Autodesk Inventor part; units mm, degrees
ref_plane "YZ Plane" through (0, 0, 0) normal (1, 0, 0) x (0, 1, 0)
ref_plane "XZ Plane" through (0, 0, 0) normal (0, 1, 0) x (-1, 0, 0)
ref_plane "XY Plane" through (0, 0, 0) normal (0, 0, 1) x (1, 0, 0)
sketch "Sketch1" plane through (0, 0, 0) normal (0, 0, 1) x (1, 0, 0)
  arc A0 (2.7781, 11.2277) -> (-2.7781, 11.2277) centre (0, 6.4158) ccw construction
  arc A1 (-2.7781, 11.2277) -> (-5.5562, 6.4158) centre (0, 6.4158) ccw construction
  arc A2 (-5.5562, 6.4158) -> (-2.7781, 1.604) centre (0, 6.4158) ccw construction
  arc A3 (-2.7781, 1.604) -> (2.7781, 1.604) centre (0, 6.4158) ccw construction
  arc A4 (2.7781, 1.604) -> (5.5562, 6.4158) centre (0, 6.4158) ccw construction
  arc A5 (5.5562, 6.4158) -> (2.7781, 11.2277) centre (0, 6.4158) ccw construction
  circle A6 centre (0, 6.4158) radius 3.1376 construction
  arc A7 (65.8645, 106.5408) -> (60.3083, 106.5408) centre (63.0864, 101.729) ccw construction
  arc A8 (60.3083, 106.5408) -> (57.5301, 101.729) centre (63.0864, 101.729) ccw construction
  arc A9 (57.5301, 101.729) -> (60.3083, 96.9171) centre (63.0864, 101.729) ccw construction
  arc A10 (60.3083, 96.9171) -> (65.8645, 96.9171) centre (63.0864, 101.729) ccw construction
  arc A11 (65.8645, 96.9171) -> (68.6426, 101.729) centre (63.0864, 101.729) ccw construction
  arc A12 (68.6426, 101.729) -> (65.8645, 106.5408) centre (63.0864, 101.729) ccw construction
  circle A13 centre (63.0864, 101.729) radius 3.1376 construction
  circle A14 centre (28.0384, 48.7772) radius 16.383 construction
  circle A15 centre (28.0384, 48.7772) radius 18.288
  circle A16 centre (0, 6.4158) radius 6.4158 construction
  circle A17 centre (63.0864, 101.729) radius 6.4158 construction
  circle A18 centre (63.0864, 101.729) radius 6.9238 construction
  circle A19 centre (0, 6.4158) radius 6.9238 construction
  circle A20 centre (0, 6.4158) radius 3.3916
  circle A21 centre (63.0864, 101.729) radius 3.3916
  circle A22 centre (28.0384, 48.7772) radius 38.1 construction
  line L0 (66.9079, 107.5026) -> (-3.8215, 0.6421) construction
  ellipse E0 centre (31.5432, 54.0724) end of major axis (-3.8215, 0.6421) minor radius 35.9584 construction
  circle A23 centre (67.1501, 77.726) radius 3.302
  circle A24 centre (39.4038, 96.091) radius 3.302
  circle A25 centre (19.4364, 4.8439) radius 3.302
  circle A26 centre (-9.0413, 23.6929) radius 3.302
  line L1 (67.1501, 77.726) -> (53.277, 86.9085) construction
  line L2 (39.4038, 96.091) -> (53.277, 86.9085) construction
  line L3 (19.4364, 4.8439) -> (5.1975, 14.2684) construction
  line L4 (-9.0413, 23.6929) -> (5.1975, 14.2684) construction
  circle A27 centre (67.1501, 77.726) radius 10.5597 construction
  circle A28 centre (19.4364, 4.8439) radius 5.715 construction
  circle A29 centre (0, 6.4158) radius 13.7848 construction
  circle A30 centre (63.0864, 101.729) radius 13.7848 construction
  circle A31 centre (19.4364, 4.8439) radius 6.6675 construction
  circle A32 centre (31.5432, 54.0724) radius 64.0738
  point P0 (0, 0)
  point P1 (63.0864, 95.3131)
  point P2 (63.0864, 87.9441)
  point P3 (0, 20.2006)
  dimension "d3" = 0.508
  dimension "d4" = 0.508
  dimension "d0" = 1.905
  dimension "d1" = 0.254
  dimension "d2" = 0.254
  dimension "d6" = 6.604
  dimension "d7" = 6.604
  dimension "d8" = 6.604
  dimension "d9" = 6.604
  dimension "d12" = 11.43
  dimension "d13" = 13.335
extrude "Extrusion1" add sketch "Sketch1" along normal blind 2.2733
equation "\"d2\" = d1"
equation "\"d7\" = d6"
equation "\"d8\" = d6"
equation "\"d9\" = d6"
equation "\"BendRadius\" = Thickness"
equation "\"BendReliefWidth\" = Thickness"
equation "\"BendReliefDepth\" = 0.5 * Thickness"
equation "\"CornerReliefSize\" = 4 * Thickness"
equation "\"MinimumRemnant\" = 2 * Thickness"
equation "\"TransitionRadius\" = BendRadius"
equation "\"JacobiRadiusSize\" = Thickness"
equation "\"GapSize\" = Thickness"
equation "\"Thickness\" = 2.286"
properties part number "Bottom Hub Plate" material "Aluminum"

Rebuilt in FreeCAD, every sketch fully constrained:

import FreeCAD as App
import Part
import Sketcher

V = App.Vector
Q = App.Units.Quantity

doc = App.newDocument("Part")
params = doc.addObject("Spreadsheet::Sheet", "Params")
for row, (alias, value) in enumerate([
    ("sketch1_diameter", "0.26 in"),
    ("sketch1_diameter2", "1.44 in"),
    ("pad1_length", "0.0895 in"),
], start=1):
    params.set(f"A{row}", alias)
    params.set(f"B{row}", "=" + value)
    params.setAlias(f"B{row}", alias)

body = doc.addObject("PartDesign::Body", "Body")

sketch1 = body.newObject("Sketcher::SketchObject", "Sketch")
sketch1.AttachmentSupport = (doc.getObject("XY_Plane"), [""])
sketch1.MapMode = "FlatFace"
sketch1.addGeometry([
    Part.Circle(V(31.5432, 54.0724, 0), V(0, 0, 1), 64.0738),
    Part.Circle(V(19.4364, 4.8439, 0), V(0, 0, 1), 3.302),
    Part.Circle(V(0, 6.4158, 0), V(0, 0, 1), 3.3916),
    Part.Circle(V(-9.0413, 23.6929, 0), V(0, 0, 1), 3.302),
    Part.Circle(V(28.0384, 48.7772, 0), V(0, 0, 1), 18.288),
    Part.Circle(V(67.1501, 77.726, 0), V(0, 0, 1), 3.302),
    Part.Circle(V(39.4038, 96.091, 0), V(0, 0, 1), 3.302),
    Part.Circle(V(63.0864, 101.729, 0), V(0, 0, 1), 3.3916),
], False)
sketch1.addConstraint([
    Sketcher.Constraint("Equal", 1, 3),
    Sketcher.Constraint("Equal", 3, 5),
    Sketcher.Constraint("Equal", 5, 6),
    Sketcher.Constraint("Equal", 2, 7),
    Sketcher.Constraint("PointOnObject", 2, 3, -2),
    Sketcher.Constraint("Diameter", 1, Q("0.26 in")),
    Sketcher.Constraint("Diameter", 4, Q("1.44 in")),
    Sketcher.Constraint("Diameter", 0, 128.1476),
    Sketcher.Constraint("Diameter", 2, 6.7832),
    Sketcher.Constraint("DistanceX", 7, 3, 5, 3, Q("0.16 in")),
    Sketcher.Constraint("DistanceY", 5, 3, 7, 3, Q("0.945 in")),
    Sketcher.Constraint("DistanceY", -1, 1, 1, 3, Q("0.1907 in")),
    Sketcher.Constraint("DistanceY", -1, 1, 2, 3, Q("0.2526 in")),
    Sketcher.Constraint("DistanceY", -1, 1, 3, 3, Q("0.9328 in")),
    Sketcher.Constraint("DistanceX", -1, 1, 5, 3, Q("2.6437 in")),
    Sketcher.Constraint("DistanceY", -1, 1, 6, 3, Q("3.7831 in")),
    Sketcher.Constraint("DistanceX", 1, 3, 5, 3, Q("1.8785 in")),
    Sketcher.Constraint("DistanceY", 2, 3, 5, 3, Q("2.8075 in")),
    Sketcher.Constraint("DistanceX", -1, 1, 0, 3, 31.5432),
    Sketcher.Constraint("DistanceY", -1, 1, 0, 3, 54.0724),
    Sketcher.Constraint("DistanceX", 3, 3, -1, 1, 9.0413),
    Sketcher.Constraint("DistanceX", -1, 1, 4, 3, 28.0384),
    Sketcher.Constraint("DistanceY", -1, 1, 4, 3, 48.7772),
    Sketcher.Constraint("DistanceX", -1, 1, 6, 3, 39.4038),
])
sketch1.setExpression("Constraints[5]", "Params.sketch1_diameter")
sketch1.setExpression("Constraints[6]", "Params.sketch1_diameter2")
pad1 = body.newObject("PartDesign::Pad", "Pad")
pad1.Profile = sketch1
pad1.setExpression("Length", "Params.pad1_length")

doc.recompute()
